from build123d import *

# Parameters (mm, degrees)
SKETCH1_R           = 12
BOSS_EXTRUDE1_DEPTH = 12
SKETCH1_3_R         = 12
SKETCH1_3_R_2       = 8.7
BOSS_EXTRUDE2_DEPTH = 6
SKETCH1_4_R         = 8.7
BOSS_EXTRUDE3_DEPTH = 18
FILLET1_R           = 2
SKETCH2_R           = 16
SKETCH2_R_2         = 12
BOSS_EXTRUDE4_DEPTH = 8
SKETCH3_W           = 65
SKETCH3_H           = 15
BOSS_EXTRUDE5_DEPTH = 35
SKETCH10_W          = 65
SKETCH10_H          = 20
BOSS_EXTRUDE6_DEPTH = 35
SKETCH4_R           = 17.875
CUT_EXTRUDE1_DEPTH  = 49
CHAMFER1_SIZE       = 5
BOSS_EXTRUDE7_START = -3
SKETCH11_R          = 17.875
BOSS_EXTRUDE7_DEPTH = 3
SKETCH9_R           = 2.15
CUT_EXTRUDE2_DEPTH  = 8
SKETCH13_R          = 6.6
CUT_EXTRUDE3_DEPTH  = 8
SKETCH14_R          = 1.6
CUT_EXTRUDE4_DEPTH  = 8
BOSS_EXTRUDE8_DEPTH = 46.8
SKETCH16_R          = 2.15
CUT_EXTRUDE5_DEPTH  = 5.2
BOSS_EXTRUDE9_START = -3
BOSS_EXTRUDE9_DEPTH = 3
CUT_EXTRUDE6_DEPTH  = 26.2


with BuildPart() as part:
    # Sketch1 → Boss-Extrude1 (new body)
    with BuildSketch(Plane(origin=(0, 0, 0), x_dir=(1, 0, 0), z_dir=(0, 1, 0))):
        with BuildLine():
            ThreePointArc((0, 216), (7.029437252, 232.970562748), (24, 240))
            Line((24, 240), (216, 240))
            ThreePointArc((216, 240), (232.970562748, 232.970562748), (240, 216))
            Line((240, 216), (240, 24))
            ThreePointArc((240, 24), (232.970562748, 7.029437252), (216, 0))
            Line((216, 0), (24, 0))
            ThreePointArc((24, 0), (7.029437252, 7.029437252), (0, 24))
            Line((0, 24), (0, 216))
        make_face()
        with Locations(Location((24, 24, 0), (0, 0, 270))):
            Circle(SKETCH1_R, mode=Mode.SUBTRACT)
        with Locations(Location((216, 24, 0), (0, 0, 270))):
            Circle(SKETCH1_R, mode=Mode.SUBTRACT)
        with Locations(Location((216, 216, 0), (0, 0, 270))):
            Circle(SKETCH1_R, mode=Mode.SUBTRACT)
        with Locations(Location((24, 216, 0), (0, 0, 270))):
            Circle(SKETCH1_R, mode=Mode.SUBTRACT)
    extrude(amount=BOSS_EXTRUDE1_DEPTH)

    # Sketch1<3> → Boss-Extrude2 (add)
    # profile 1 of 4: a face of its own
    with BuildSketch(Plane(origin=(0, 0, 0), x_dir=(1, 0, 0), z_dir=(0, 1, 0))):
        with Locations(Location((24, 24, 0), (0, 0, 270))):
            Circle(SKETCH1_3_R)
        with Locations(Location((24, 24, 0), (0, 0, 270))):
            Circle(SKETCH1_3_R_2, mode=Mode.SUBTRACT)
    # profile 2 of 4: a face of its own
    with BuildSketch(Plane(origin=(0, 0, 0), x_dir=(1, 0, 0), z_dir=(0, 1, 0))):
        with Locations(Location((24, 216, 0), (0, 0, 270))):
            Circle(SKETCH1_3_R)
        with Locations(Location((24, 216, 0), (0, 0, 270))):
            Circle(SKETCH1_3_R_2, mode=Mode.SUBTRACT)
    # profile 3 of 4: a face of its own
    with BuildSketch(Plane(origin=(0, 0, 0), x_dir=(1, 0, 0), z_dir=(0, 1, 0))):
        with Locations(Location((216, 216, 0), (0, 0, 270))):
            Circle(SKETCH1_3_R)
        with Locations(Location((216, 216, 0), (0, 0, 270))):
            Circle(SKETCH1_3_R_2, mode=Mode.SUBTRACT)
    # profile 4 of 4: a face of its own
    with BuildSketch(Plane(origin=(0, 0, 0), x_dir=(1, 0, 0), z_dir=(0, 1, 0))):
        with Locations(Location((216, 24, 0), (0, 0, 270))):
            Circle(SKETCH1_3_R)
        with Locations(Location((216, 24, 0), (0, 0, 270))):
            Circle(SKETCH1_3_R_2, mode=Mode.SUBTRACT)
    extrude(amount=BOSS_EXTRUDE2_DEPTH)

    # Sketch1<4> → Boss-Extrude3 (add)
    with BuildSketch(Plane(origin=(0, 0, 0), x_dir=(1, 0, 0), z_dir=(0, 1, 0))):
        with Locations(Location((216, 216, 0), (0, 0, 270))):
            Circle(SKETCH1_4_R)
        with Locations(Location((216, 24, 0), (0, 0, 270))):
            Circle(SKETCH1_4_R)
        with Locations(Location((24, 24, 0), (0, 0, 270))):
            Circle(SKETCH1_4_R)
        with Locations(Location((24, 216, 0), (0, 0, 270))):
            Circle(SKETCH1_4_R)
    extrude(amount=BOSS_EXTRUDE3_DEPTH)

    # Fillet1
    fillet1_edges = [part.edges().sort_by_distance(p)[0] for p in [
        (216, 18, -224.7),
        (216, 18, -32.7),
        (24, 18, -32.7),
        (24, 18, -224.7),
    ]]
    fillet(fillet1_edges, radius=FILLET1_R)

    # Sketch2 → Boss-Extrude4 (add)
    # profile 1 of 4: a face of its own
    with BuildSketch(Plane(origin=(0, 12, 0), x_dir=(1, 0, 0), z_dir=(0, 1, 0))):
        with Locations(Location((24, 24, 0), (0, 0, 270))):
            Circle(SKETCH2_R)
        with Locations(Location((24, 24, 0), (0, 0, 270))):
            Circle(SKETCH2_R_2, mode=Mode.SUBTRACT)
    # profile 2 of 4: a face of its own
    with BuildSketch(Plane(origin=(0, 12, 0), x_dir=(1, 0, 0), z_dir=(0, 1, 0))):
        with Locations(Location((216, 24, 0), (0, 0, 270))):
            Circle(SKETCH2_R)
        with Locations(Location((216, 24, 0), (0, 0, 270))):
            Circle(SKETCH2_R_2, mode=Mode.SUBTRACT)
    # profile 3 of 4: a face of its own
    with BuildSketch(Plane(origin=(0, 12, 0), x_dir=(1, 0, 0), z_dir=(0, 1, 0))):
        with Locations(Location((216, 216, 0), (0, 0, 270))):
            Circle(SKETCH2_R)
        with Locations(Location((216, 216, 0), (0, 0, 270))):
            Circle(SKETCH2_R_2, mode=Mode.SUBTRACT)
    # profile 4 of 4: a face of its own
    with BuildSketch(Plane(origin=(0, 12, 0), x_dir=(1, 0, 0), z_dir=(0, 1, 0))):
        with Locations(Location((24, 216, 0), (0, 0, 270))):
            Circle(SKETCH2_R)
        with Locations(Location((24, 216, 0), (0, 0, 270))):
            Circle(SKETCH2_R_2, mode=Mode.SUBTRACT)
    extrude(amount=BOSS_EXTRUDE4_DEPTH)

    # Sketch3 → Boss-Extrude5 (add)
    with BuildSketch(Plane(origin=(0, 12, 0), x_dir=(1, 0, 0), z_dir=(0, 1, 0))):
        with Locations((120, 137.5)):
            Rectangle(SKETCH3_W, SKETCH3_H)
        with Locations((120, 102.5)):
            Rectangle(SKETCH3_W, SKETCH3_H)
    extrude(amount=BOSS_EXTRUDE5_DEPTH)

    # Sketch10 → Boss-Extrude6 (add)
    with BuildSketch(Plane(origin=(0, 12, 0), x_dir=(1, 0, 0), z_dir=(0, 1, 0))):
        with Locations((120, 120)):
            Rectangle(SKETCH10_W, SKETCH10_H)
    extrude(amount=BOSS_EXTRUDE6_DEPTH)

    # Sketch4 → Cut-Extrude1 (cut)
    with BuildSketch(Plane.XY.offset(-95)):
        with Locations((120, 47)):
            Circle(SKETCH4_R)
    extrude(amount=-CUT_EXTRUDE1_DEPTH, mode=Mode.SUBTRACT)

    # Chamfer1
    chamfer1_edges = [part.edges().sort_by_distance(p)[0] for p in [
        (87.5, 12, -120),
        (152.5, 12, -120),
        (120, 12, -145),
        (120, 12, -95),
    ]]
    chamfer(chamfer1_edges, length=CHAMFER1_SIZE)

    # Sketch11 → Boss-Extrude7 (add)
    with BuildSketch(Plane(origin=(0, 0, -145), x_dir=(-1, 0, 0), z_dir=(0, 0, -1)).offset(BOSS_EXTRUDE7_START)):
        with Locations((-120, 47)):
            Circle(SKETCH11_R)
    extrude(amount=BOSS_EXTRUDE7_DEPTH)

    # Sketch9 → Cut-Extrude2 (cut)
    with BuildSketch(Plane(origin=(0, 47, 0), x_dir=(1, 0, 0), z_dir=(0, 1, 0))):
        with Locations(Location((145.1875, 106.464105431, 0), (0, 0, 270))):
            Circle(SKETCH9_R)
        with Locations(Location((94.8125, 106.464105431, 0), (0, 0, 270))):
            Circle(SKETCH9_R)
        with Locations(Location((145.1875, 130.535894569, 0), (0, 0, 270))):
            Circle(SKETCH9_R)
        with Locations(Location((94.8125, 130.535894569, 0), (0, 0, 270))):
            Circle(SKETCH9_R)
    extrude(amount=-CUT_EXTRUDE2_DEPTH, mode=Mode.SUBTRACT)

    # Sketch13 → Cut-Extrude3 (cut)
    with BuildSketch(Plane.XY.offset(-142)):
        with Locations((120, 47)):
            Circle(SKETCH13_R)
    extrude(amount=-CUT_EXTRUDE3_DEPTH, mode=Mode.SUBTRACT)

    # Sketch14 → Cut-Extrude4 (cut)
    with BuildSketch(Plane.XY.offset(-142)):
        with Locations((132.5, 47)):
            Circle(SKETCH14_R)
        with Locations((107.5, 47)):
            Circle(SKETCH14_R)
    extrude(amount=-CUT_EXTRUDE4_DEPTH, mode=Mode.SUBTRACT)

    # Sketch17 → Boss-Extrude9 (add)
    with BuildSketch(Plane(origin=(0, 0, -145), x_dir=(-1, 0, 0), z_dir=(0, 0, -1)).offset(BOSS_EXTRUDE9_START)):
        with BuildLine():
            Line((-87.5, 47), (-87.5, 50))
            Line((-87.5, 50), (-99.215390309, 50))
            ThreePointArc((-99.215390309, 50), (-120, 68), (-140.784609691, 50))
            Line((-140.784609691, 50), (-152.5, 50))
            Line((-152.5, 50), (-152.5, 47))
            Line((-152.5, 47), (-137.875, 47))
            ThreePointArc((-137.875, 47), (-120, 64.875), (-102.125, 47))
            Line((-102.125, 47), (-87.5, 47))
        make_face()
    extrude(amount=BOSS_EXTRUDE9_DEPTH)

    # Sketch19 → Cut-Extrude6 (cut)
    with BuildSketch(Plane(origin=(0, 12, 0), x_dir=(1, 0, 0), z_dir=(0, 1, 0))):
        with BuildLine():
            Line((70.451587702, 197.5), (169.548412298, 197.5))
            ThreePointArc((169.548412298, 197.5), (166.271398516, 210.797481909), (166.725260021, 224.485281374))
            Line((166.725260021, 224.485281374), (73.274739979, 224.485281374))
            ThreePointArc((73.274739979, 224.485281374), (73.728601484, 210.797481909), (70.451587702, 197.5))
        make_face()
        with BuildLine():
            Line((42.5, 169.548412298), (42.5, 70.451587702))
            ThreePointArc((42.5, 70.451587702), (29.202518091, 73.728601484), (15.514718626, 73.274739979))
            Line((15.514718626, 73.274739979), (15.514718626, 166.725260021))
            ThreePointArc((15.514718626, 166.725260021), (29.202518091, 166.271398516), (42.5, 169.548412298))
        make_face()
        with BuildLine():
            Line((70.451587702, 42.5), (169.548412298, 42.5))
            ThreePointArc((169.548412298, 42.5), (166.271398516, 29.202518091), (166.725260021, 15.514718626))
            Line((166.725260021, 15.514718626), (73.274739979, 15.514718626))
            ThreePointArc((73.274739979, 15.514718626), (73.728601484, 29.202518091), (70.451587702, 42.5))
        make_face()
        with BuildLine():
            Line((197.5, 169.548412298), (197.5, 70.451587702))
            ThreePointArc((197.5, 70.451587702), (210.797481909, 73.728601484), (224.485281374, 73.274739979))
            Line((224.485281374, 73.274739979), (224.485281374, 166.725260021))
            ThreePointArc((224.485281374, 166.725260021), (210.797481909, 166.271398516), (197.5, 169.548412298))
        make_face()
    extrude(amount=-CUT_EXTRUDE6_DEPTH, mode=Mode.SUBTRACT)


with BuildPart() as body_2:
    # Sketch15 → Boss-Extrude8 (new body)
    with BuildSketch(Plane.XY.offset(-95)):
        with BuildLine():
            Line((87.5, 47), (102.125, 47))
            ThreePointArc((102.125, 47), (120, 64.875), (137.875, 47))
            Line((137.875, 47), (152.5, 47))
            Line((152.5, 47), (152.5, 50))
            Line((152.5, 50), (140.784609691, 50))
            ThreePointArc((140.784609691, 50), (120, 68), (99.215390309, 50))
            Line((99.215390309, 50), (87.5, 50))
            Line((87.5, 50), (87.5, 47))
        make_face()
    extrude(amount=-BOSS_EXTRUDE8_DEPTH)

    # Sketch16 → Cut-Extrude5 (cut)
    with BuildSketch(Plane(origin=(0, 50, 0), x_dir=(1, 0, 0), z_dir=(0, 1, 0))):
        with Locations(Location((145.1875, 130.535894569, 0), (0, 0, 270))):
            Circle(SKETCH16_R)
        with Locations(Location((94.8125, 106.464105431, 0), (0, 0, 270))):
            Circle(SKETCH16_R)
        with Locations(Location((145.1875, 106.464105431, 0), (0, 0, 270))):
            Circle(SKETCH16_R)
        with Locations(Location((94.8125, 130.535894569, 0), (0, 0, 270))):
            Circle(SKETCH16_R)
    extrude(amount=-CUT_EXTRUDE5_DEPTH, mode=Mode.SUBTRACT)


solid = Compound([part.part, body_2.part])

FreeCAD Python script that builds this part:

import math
import FreeCAD as App
import Part
import Sketcher
from FreeCAD import Vector


def edges_at(feature, points):
    """Names of the edges that pass closest to the given points."""
    edges = feature.Shape.Edges
    near = lambda p: min(range(len(edges)), key=lambda i: edges[i].distToShape(Part.Vertex(*p))[0])
    return sorted({f"Edge{near(p) + 1}" for p in points})

doc = App.newDocument("Part")
params = doc.addObject("Spreadsheet::Sheet", "Params")
for row, (alias, value) in enumerate([
    ("sketch1_diameter", "24 mm"),
    ("sketch1_radius", "24 mm"),
    ("sketch1_width", "192 mm"),
    ("pad1_length", "12 mm"),
    ("sketch2_diameter", "24 mm"),
    ("sketch2_diameter2", "17.4 mm"),
    ("pad2_length", "6 mm"),
    ("sketch3_diameter", "17.4 mm"),
    ("pad3_length", "18 mm"),
    ("fillet_radius", "2 mm"),
    ("sketch4_diameter", "32 mm"),
    ("sketch4_diameter2", "24 mm"),
    ("pad4_length", "8 mm"),
    ("sketch5_width", "65 mm"),
    ("sketch5_height", "15 mm"),
    ("pad5_length", "35 mm"),
    ("sketch6_width", "65 mm"),
    ("sketch6_height", "20 mm"),
    ("pad6_length", "35 mm"),
    ("sketch7_diameter", "35.75 mm"),
    ("pocket1_length", "49 mm"),
    ("chamfer_size", "5 mm"),
    ("sketch8_diameter", "35.75 mm"),
    ("pad7_length", "3 mm"),
    ("sketch9_diameter", "4.3 mm"),
    ("pocket2_length", "8 mm"),
    ("sketch10_diameter", "13.2 mm"),
    ("pocket3_length", "8 mm"),
    ("sketch11_diameter", "3.2 mm"),
    ("pocket4_length", "8 mm"),
    ("sketch12_radius", "21 mm"),
    ("sketch12_height", "3 mm"),
    ("pad8_length", "3 mm"),
    ("sketch13_radius", "50 mm"),
    ("pocket5_length", "26.2 mm"),
    ("sketch14_radius", "21 mm"),
    ("sketch14_height", "3 mm"),
    ("pad9_length", "46.8 mm"),
    ("sketch15_diameter", "4.3 mm"),
    ("pocket6_length", "5.2 mm"),
], start=1):
    params.set(f"A{row}", alias)
    params.set(f"B{row}", "=" + value)
    params.setAlias(f"B{row}", alias)

body = doc.addObject("PartDesign::Body", "Body")

# Sketch on XZ plane
sketch1 = doc.addObject("Sketcher::SketchObject", "Sketch")
body.addObject(sketch1)
sketch1.AttachmentSupport = (doc.XZ_Plane, [""])
sketch1.MapMode = "FlatFace"
sketch1.addGeometry([
    Part.ArcOfCircle(Part.Circle(Vector(24, -216, 0), Vector(0, 0, 1), 24), math.radians(-180), math.radians(-90)),  # 0
    Part.LineSegment(Vector(0, -216, 0), Vector(0, -24, 0)),  # 1
    Part.ArcOfCircle(Part.Circle(Vector(24, -24, 0), Vector(0, 0, 1), 24), math.radians(90), math.radians(180)),  # 2
    Part.LineSegment(Vector(24, 0, 0), Vector(216, 0, 0)),  # 3
    Part.ArcOfCircle(Part.Circle(Vector(216, -24, 0), Vector(0, 0, 1), 24), math.radians(0), math.radians(90)),  # 4
    Part.LineSegment(Vector(240, -24, 0), Vector(240, -216, 0)),  # 5
    Part.ArcOfCircle(Part.Circle(Vector(216, -216, 0), Vector(0, 0, 1), 24), math.radians(-90), math.radians(0)),  # 6
    Part.LineSegment(Vector(216, -240, 0), Vector(24, -240, 0)),  # 7
    Part.Circle(Vector(216, -24, 0), Vector(0, 0, 1), 12),  # 8
    Part.Circle(Vector(24, -24, 0), Vector(0, 0, 1), 12),  # 9
    Part.Circle(Vector(216, -216, 0), Vector(0, 0, 1), 12),  # 10
    Part.Circle(Vector(24, -216, 0), Vector(0, 0, 1), 12),  # 11
], False)
sketch1.addConstraint([
    Sketcher.Constraint("Tangent", 0, 1, 1, 1),
    Sketcher.Constraint("Tangent", 1, 2, 2, 2),
    Sketcher.Constraint("Tangent", 2, 1, 3, 1),
    Sketcher.Constraint("Tangent", 3, 2, 4, 2),
    Sketcher.Constraint("Tangent", 4, 1, 5, 1),
    Sketcher.Constraint("Tangent", 5, 2, 6, 2),
    Sketcher.Constraint("Tangent", 6, 1, 7, 1),
    Sketcher.Constraint("Tangent", 7, 2, 0, 2),
    Sketcher.Constraint("Vertical", 1),
    Sketcher.Constraint("Horizontal", 3),
    Sketcher.Constraint("Vertical", 5),
    Sketcher.Constraint("Horizontal", 7),
    Sketcher.Constraint("Coincident", 8, 3, 4, 3),
    Sketcher.Constraint("Coincident", 9, 3, 2, 3),
    Sketcher.Constraint("Coincident", 10, 3, 6, 3),
    Sketcher.Constraint("Coincident", 11, 3, 0, 3),
    Sketcher.Constraint("Equal", 0, 2),
    Sketcher.Constraint("Equal", 2, 4),
    Sketcher.Constraint("Equal", 4, 6),
    Sketcher.Constraint("Equal", 8, 9),
    Sketcher.Constraint("Equal", 9, 10),
    Sketcher.Constraint("Equal", 10, 11),
    Sketcher.Constraint("PointOnObject", 0, 1, -2),
    Sketcher.Constraint("PointOnObject", 2, 1, -1),
    Sketcher.Constraint("Equal", 7, 1),
    Sketcher.Constraint("Diameter", 8, 24.0),
    Sketcher.Constraint("Radius", 0, 24.0),
    Sketcher.Constraint("DistanceX", 3, 1, 3, 2, 192.0),
])
sketch1.setExpression("Constraints[25]", "Params.sketch1_diameter")
sketch1.setExpression("Constraints[26]", "Params.sketch1_radius")
sketch1.setExpression("Constraints[27]", "Params.sketch1_width")
pad1 = doc.addObject("PartDesign::Pad", "Pad")
body.addObject(pad1)
pad1.Profile = sketch1
pad1.setExpression("Length", "Params.pad1_length")
pad1.Reversed = True

# Sketch on XZ plane
sketch2 = doc.addObject("Sketcher::SketchObject", "Sketch001")
body.addObject(sketch2)
sketch2.AttachmentSupport = (doc.XZ_Plane, [""])
sketch2.MapMode = "FlatFace"
sketch2.addGeometry([
    Part.Circle(Vector(24, -24, 0), Vector(0, 0, 1), 12),  # 0
    Part.Circle(Vector(24, -24, 0), Vector(0, 0, 1), 9),  # 1
    Part.Circle(Vector(24, -216, 0), Vector(0, 0, 1), 12),  # 2
    Part.Circle(Vector(24, -216, 0), Vector(0, 0, 1), 9),  # 3
    Part.Circle(Vector(216, -216, 0), Vector(0, 0, 1), 12),  # 4
    Part.Circle(Vector(216, -216, 0), Vector(0, 0, 1), 9),  # 5
    Part.Circle(Vector(216, -24, 0), Vector(0, 0, 1), 12),  # 6
    Part.Circle(Vector(216, -24, 0), Vector(0, 0, 1), 9),  # 7
], False)
sketch2.addConstraint([
    Sketcher.Constraint("Coincident", 1, 3, 0, 3),
    Sketcher.Constraint("Coincident", 3, 3, 2, 3),
    Sketcher.Constraint("Coincident", 5, 3, 4, 3),
    Sketcher.Constraint("Coincident", 7, 3, 6, 3),
    Sketcher.Constraint("Equal", 0, 2),
    Sketcher.Constraint("Equal", 1, 3),
    Sketcher.Constraint("Equal", 2, 4),
    Sketcher.Constraint("Equal", 3, 5),
    Sketcher.Constraint("Equal", 4, 6),
    Sketcher.Constraint("Equal", 5, 7),
    Sketcher.Constraint("Horizontal", 3, 3, 4, 3),
    Sketcher.Constraint("Horizontal", 1, 3, 6, 3),
    Sketcher.Constraint("Vertical", 1, 3, 2, 3),
    Sketcher.Constraint("Vertical", 5, 3, 6, 3),
    Sketcher.Constraint("Diameter", 0, 24.0),
    Sketcher.Constraint("Diameter", 1, 17.4),
    Sketcher.Constraint("DistanceX", -1, 1, 0, 3, 24.0),
    Sketcher.Constraint("DistanceY", 0, 3, -1, 1, 24.0),
    Sketcher.Constraint("DistanceY", 2, 3, -1, 1, 216.0),
    Sketcher.Constraint("DistanceX", -1, 1, 4, 3, 216.0),
])
sketch2.setExpression("Constraints[14]", "Params.sketch2_diameter")
sketch2.setExpression("Constraints[15]", "Params.sketch2_diameter2")
pad2 = doc.addObject("PartDesign::Pad", "Pad001")
body.addObject(pad2)
pad2.Profile = sketch2
pad2.setExpression("Length", "Params.pad2_length")
pad2.Reversed = True

# Sketch on XZ plane
sketch3 = doc.addObject("Sketcher::SketchObject", "Sketch002")
body.addObject(sketch3)
sketch3.AttachmentSupport = (doc.XZ_Plane, [""])
sketch3.MapMode = "FlatFace"
sketch3.addGeometry([
    Part.Circle(Vector(216, -216, 0), Vector(0, 0, 1), 9),
    Part.Circle(Vector(216, -24, 0), Vector(0, 0, 1), 9),
    Part.Circle(Vector(24, -24, 0), Vector(0, 0, 1), 9),
    Part.Circle(Vector(24, -216, 0), Vector(0, 0, 1), 9),
], False)
sketch3.addConstraint([
    Sketcher.Constraint("Equal", 0, 1),
    Sketcher.Constraint("Equal", 1, 2),
    Sketcher.Constraint("Equal", 2, 3),
    Sketcher.Constraint("Horizontal", 1, 3, 2, 3),
    Sketcher.Constraint("Horizontal", 0, 3, 3, 3),
    Sketcher.Constraint("Vertical", 0, 3, 1, 3),
    Sketcher.Constraint("Vertical", 2, 3, 3, 3),
    Sketcher.Constraint("Diameter", 0, 17.4),
    Sketcher.Constraint("DistanceX", -1, 1, 0, 3, 216.0),
    Sketcher.Constraint("DistanceY", 0, 3, -1, 1, 216.0),
    Sketcher.Constraint("DistanceY", 1, 3, -1, 1, 24.0),
    Sketcher.Constraint("DistanceX", -1, 1, 2, 3, 24.0),
])
sketch3.setExpression("Constraints[7]", "Params.sketch3_diameter")
pad3 = doc.addObject("PartDesign::Pad", "Pad002")
body.addObject(pad3)
pad3.Profile = sketch3
pad3.setExpression("Length", "Params.pad3_length")
pad3.Reversed = True
doc.recompute()

fillet = doc.addObject("PartDesign::Fillet", "Fillet")
body.addObject(fillet)
fillet.Base = (pad3, edges_at(pad3, [
    (216, 18, -224.7),
    (216, 18, -32.7),
    (24, 18, -32.7),
    (24, 18, -224.7),
]))
fillet.setExpression("Radius", "Params.fillet_radius")

# Sketch on XZ plane
sketch4 = doc.addObject("Sketcher::SketchObject", "Sketch003")
body.addObject(sketch4)
sketch4.AttachmentSupport = (doc.XZ_Plane, [""])
sketch4.MapMode = "FlatFace"
sketch4.AttachmentOffset = App.Placement(Vector(0, 0, -12), App.Rotation())
sketch4.addGeometry([
    Part.Circle(Vector(24, -24, 0), Vector(0, 0, 1), 16),  # 0
    Part.Circle(Vector(24, -24, 0), Vector(0, 0, 1), 12),  # 1
    Part.Circle(Vector(216, -24, 0), Vector(0, 0, 1), 16),  # 2
    Part.Circle(Vector(216, -24, 0), Vector(0, 0, 1), 12),  # 3
    Part.Circle(Vector(216, -216, 0), Vector(0, 0, 1), 16),  # 4
    Part.Circle(Vector(216, -216, 0), Vector(0, 0, 1), 12),  # 5
    Part.Circle(Vector(24, -216, 0), Vector(0, 0, 1), 16),  # 6
    Part.Circle(Vector(24, -216, 0), Vector(0, 0, 1), 12),  # 7
], False)
sketch4.addConstraint([
    Sketcher.Constraint("Coincident", 1, 3, 0, 3),
    Sketcher.Constraint("Coincident", 3, 3, 2, 3),
    Sketcher.Constraint("Coincident", 5, 3, 4, 3),
    Sketcher.Constraint("Coincident", 7, 3, 6, 3),
    Sketcher.Constraint("Equal", 0, 2),
    Sketcher.Constraint("Equal", 1, 3),
    Sketcher.Constraint("Equal", 2, 4),
    Sketcher.Constraint("Equal", 3, 5),
    Sketcher.Constraint("Equal", 4, 6),
    Sketcher.Constraint("Equal", 5, 7),
    Sketcher.Constraint("Horizontal", 1, 3, 2, 3),
    Sketcher.Constraint("Horizontal", 5, 3, 6, 3),
    Sketcher.Constraint("Vertical", 3, 3, 4, 3),
    Sketcher.Constraint("Vertical", 1, 3, 6, 3),
    Sketcher.Constraint("Diameter", 0, 32.0),
    Sketcher.Constraint("Diameter", 1, 24.0),
    Sketcher.Constraint("DistanceX", -1, 1, 0, 3, 24.0),
    Sketcher.Constraint("DistanceY", 0, 3, -1, 1, 24.0),
    Sketcher.Constraint("DistanceX", -1, 1, 2, 3, 216.0),
    Sketcher.Constraint("DistanceY", 4, 3, -1, 1, 216.0),
])
sketch4.setExpression("Constraints[14]", "Params.sketch4_diameter")
sketch4.setExpression("Constraints[15]", "Params.sketch4_diameter2")
pad4 = doc.addObject("PartDesign::Pad", "Pad003")
body.addObject(pad4)
pad4.Profile = sketch4
pad4.setExpression("Length", "Params.pad4_length")
pad4.Reversed = True

# Sketch on XZ plane
sketch5 = doc.addObject("Sketcher::SketchObject", "Sketch004")
body.addObject(sketch5)
sketch5.AttachmentSupport = (doc.XZ_Plane, [""])
sketch5.MapMode = "FlatFace"
sketch5.AttachmentOffset = App.Placement(Vector(0, 0, -12), App.Rotation())
sketch5.addGeometry([
    Part.LineSegment(Vector(88, -145, 0), Vector(88, -130, 0)),  # 0
    Part.LineSegment(Vector(88, -130, 0), Vector(152, -130, 0)),  # 1
    Part.LineSegment(Vector(152, -130, 0), Vector(152, -145, 0)),  # 2
    Part.LineSegment(Vector(152, -145, 0), Vector(88, -145, 0)),  # 3
    Part.LineSegment(Vector(88, -110, 0), Vector(88, -95, 0)),  # 4
    Part.LineSegment(Vector(88, -95, 0), Vector(152, -95, 0)),  # 5
    Part.LineSegment(Vector(152, -95, 0), Vector(152, -110, 0)),  # 6
    Part.LineSegment(Vector(152, -110, 0), Vector(88, -110, 0)),  # 7
], False)
sketch5.addConstraint([
    Sketcher.Constraint("Coincident", 0, 2, 1, 1),
    Sketcher.Constraint("Coincident", 1, 2, 2, 1),
    Sketcher.Constraint("Coincident", 2, 2, 3, 1),
    Sketcher.Constraint("Coincident", 3, 2, 0, 1),
    Sketcher.Constraint("Coincident", 4, 2, 5, 1),
    Sketcher.Constraint("Coincident", 5, 2, 6, 1),
    Sketcher.Constraint("Coincident", 6, 2, 7, 1),
    Sketcher.Constraint("Coincident", 7, 2, 4, 1),
    Sketcher.Constraint("Vertical", 0),
    Sketcher.Constraint("Horizontal", 1),
    Sketcher.Constraint("Vertical", 2),
    Sketcher.Constraint("Horizontal", 3),
    Sketcher.Constraint("Vertical", 4),
    Sketcher.Constraint("Horizontal", 5),
    Sketcher.Constraint("Vertical", 6),
    Sketcher.Constraint("Horizontal", 7),
    Sketcher.Constraint("Vertical", 3, 2, 4, 2),
    Sketcher.Constraint("Vertical", 2, 2, 5, 2),
    Sketcher.Constraint("Equal", 2, 4),
    Sketcher.Constraint("DistanceX", 1, 1, 1, 2, 65.0),
    Sketcher.Constraint("DistanceY", 0, 1, 0, 2, 15.0),
    Sketcher.Constraint("DistanceY", 0, 2, -1, 1, 130.0),
    Sketcher.Constraint("DistanceY", 4, 2, -1, 1, 95.0),
    Sketcher.Constraint("DistanceX", -1, 1, 0, 2, 87.5),
])
sketch5.setExpression("Constraints[19]", "Params.sketch5_width")
sketch5.setExpression("Constraints[20]", "Params.sketch5_height")
pad5 = doc.addObject("PartDesign::Pad", "Pad004")
body.addObject(pad5)
pad5.Profile = sketch5
pad5.setExpression("Length", "Params.pad5_length")
pad5.Reversed = True

# Sketch on XZ plane
sketch6 = doc.addObject("Sketcher::SketchObject", "Sketch005")
body.addObject(sketch6)
sketch6.AttachmentSupport = (doc.XZ_Plane, [""])
sketch6.MapMode = "FlatFace"
sketch6.AttachmentOffset = App.Placement(Vector(0, 0, -12), App.Rotation())
sketch6.addGeometry([
    Part.LineSegment(Vector(88, -130, 0), Vector(88, -110, 0)),
    Part.LineSegment(Vector(88, -110, 0), Vector(152, -110, 0)),
    Part.LineSegment(Vector(152, -110, 0), Vector(152, -130, 0)),
    Part.LineSegment(Vector(152, -130, 0), Vector(88, -130, 0)),
], False)
sketch6.addConstraint([
    Sketcher.Constraint("Coincident", 0, 2, 1, 1),
    Sketcher.Constraint("Coincident", 1, 2, 2, 1),
    Sketcher.Constraint("Coincident", 2, 2, 3, 1),
    Sketcher.Constraint("Coincident", 3, 2, 0, 1),
    Sketcher.Constraint("Vertical", 0),
    Sketcher.Constraint("Horizontal", 1),
    Sketcher.Constraint("Vertical", 2),
    Sketcher.Constraint("Horizontal", 3),
    Sketcher.Constraint("DistanceX", 1, 1, 1, 2, 65.0),
    Sketcher.Constraint("DistanceY", 0, 1, 0, 2, 20.0),
    Sketcher.Constraint("DistanceY", 0, 2, -1, 1, 110.0),
    Sketcher.Constraint("DistanceX", -1, 1, 0, 2, 87.5),
])
sketch6.setExpression("Constraints[8]", "Params.sketch6_width")
sketch6.setExpression("Constraints[9]", "Params.sketch6_height")
pad6 = doc.addObject("PartDesign::Pad", "Pad005")
body.addObject(pad6)
pad6.Profile = sketch6
pad6.setExpression("Length", "Params.pad6_length")
pad6.Reversed = True

# Sketch on XY plane
sketch7 = doc.addObject("Sketcher::SketchObject", "Sketch006")
body.addObject(sketch7)
sketch7.AttachmentSupport = (doc.XY_Plane, [""])
sketch7.MapMode = "FlatFace"
sketch7.AttachmentOffset = App.Placement(Vector(0, 0, -95), App.Rotation())
sketch7.addGeometry(Part.Circle(Vector(120, 47, 0), Vector(0, 0, 1), 18), False)
sketch7.addConstraint([
    Sketcher.Constraint("Diameter", 0, 35.75),
    Sketcher.Constraint("DistanceX", -1, 1, 0, 3, 120.0),
    Sketcher.Constraint("DistanceY", -1, 1, 0, 3, 47.0),
])
sketch7.setExpression("Constraints[0]", "Params.sketch7_diameter")
pocket1 = doc.addObject("PartDesign::Pocket", "Pocket")
body.addObject(pocket1)
pocket1.Profile = sketch7
pocket1.setExpression("Length", "Params.pocket1_length")
doc.recompute()

chamfer = doc.addObject("PartDesign::Chamfer", "Chamfer")
body.addObject(chamfer)
chamfer.Base = (pocket1, edges_at(pocket1, [
    (87.5, 12, -120),
    (152.5, 12, -120),
    (120, 12, -145),
    (120, 12, -95),
]))
chamfer.setExpression("Size", "Params.chamfer_size")

# Sketch on XY plane
sketch8 = doc.addObject("Sketcher::SketchObject", "Sketch007")
body.addObject(sketch8)
sketch8.AttachmentSupport = (doc.XY_Plane, [""])
sketch8.MapMode = "FlatFace"
sketch8.AttachmentOffset = App.Placement(Vector(0, 0, -142), App.Rotation())
sketch8.addGeometry(Part.Circle(Vector(120, 47, 0), Vector(0, 0, 1), 18), False)
sketch8.addConstraint([
    Sketcher.Constraint("Diameter", 0, 35.75),
    Sketcher.Constraint("DistanceX", -1, 1, 0, 3, 120.0),
    Sketcher.Constraint("DistanceY", -1, 1, 0, 3, 47.0),
])
sketch8.setExpression("Constraints[0]", "Params.sketch8_diameter")
pad7 = doc.addObject("PartDesign::Pad", "Pad006")
body.addObject(pad7)
pad7.Profile = sketch8
pad7.setExpression("Length", "Params.pad7_length")
pad7.Reversed = True

# Sketch on XZ plane
sketch9 = doc.addObject("Sketcher::SketchObject", "Sketch008")
body.addObject(sketch9)
sketch9.AttachmentSupport = (doc.XZ_Plane, [""])
sketch9.MapMode = "FlatFace"
sketch9.AttachmentOffset = App.Placement(Vector(0, 0, -47), App.Rotation())
sketch9.addGeometry([
    Part.Circle(Vector(145.2, -106.5, 0), Vector(0, 0, 1), 2.1),
    Part.Circle(Vector(94.8, -106.5, 0), Vector(0, 0, 1), 2.1),
    Part.Circle(Vector(145.2, -130.5, 0), Vector(0, 0, 1), 2.1),
    Part.Circle(Vector(94.8, -130.5, 0), Vector(0, 0, 1), 2.1),
], False)
sketch9.addConstraint([
    Sketcher.Constraint("Equal", 0, 1),
    Sketcher.Constraint("Equal", 1, 2),
    Sketcher.Constraint("Equal", 2, 3),
    Sketcher.Constraint("Horizontal", 0, 3, 1, 3),
    Sketcher.Constraint("Horizontal", 2, 3, 3, 3),
    Sketcher.Constraint("Vertical", 0, 3, 2, 3),
    Sketcher.Constraint("Vertical", 1, 3, 3, 3),
    Sketcher.Constraint("Diameter", 0, 4.3),
    Sketcher.Constraint("DistanceX", 1, 3, 0, 3, 50.375),
    Sketcher.Constraint("DistanceX", -1, 1, 0, 3, 145.1875),
    Sketcher.Constraint("DistanceY", 2, 3, 0, 3, 24.071789),
    Sketcher.Constraint("DistanceY", 0, 3, -1, 1, 106.464105),
])
sketch9.setExpression("Constraints[7]", "Params.sketch9_diameter")
pocket2 = doc.addObject("PartDesign::Pocket", "Pocket001")
body.addObject(pocket2)
pocket2.Profile = sketch9
pocket2.setExpression("Length", "Params.pocket2_length")
pocket2.Reversed = True

# Sketch on XY plane
sketch10 = doc.addObject("Sketcher::SketchObject", "Sketch009")
body.addObject(sketch10)
sketch10.AttachmentSupport = (doc.XY_Plane, [""])
sketch10.MapMode = "FlatFace"
sketch10.AttachmentOffset = App.Placement(Vector(0, 0, -142), App.Rotation())
sketch10.addGeometry(Part.Circle(Vector(120, 47, 0), Vector(0, 0, 1), 7), False)
sketch10.addConstraint([
    Sketcher.Constraint("Diameter", 0, 13.2),
    Sketcher.Constraint("DistanceX", -1, 1, 0, 3, 120.0),
    Sketcher.Constraint("DistanceY", -1, 1, 0, 3, 47.0),
])
sketch10.setExpression("Constraints[0]", "Params.sketch10_diameter")
pocket3 = doc.addObject("PartDesign::Pocket", "Pocket002")
body.addObject(pocket3)
pocket3.Profile = sketch10
pocket3.setExpression("Length", "Params.pocket3_length")

# Sketch on XY plane
sketch11 = doc.addObject("Sketcher::SketchObject", "Sketch010")
body.addObject(sketch11)
sketch11.AttachmentSupport = (doc.XY_Plane, [""])
sketch11.MapMode = "FlatFace"
sketch11.AttachmentOffset = App.Placement(Vector(0, 0, -142), App.Rotation())
sketch11.addGeometry([
    Part.Circle(Vector(132.5, 47, 0), Vector(0, 0, 1), 1.6),
    Part.Circle(Vector(107.5, 47, 0), Vector(0, 0, 1), 1.6),
], False)
sketch11.addConstraint([
    Sketcher.Constraint("Equal", 0, 1),
    Sketcher.Constraint("Horizontal", 0, 3, 1, 3),
    Sketcher.Constraint("Diameter", 0, 3.2),
    Sketcher.Constraint("DistanceY", -1, 1, 0, 3, 47.0),
    Sketcher.Constraint("DistanceX", 1, 3, 0, 3, 25.0),
    Sketcher.Constraint("DistanceX", -1, 1, 0, 3, 132.5),
])
sketch11.setExpression("Constraints[2]", "Params.sketch11_diameter")
pocket4 = doc.addObject("PartDesign::Pocket", "Pocket003")
body.addObject(pocket4)
pocket4.Profile = sketch11
pocket4.setExpression("Length", "Params.pocket4_length")

# Sketch on XY plane
sketch12 = doc.addObject("Sketcher::SketchObject", "Sketch011")
body.addObject(sketch12)
sketch12.AttachmentSupport = (doc.XY_Plane, [""])
sketch12.MapMode = "FlatFace"
sketch12.AttachmentOffset = App.Placement(Vector(0, 0, -142), App.Rotation())
sketch12.addGeometry([
    Part.LineSegment(Vector(87.5, 47, 0), Vector(87.5, 50, 0)),  # 0
    Part.LineSegment(Vector(87.5, 50, 0), Vector(99.2, 50, 0)),  # 1
    Part.ArcOfCircle(Part.Circle(Vector(120, 47, 0), Vector(0, 0, 1), 21), math.radians(8), math.radians(172)),  # 2
    Part.LineSegment(Vector(140.8, 50, 0), Vector(152.5, 50, 0)),  # 3
    Part.LineSegment(Vector(152.5, 50, 0), Vector(152.5, 47, 0)),  # 4
    Part.LineSegment(Vector(152.5, 47, 0), Vector(137.9, 47, 0)),  # 5
    Part.ArcOfCircle(Part.Circle(Vector(120, 47, 0), Vector(0, 0, 1), 17.9), math.radians(0), math.radians(180)),  # 6
    Part.LineSegment(Vector(102.1, 47, 0), Vector(87.5, 47, 0)),  # 7
], False)
sketch12.addConstraint([
    Sketcher.Constraint("Coincident", 0, 2, 1, 1),
    Sketcher.Constraint("Coincident", 1, 2, 2, 2),
    Sketcher.Constraint("Coincident", 2, 1, 3, 1),
    Sketcher.Constraint("Coincident", 3, 2, 4, 1),
    Sketcher.Constraint("Coincident", 4, 2, 5, 1),
    Sketcher.Constraint("Coincident", 5, 2, 6, 1),
    Sketcher.Constraint("Coincident", 6, 2, 7, 1),
    Sketcher.Constraint("Coincident", 7, 2, 0, 1),
    Sketcher.Constraint("Vertical", 0),
    Sketcher.Constraint("Horizontal", 1),
    Sketcher.Constraint("Horizontal", 3),
    Sketcher.Constraint("Vertical", 4),
    Sketcher.Constraint("Horizontal", 5),
    Sketcher.Constraint("Horizontal", 7),
    Sketcher.Constraint("Coincident", 6, 3, 2, 3),
    Sketcher.Constraint("Horizontal", 1, 2, 2, 1),
    Sketcher.Constraint("Horizontal", 6, 3, 4, 2),
    Sketcher.Constraint("Horizontal", 5, 2, 6, 2),
    Sketcher.Constraint("Equal", 1, 3),
    Sketcher.Constraint("Radius", 2, 21.0),
    Sketcher.Constraint("DistanceY", 0, 1, 0, 2, 3.0),
    Sketcher.Constraint("DistanceX", -1, 1, 2, 3, 120.0),
    Sketcher.Constraint("DistanceY", -1, 1, 2, 3, 47.0),
    Sketcher.Constraint("Radius", 6, 17.875),
    Sketcher.Constraint("DistanceX", 0, 2, 3, 2, 65.0),
])
sketch12.setExpression("Constraints[19]", "Params.sketch12_radius")
sketch12.setExpression("Constraints[20]", "Params.sketch12_height")
pad8 = doc.addObject("PartDesign::Pad", "Pad007")
body.addObject(pad8)
pad8.Profile = sketch12
pad8.setExpression("Length", "Params.pad8_length")
pad8.Reversed = True

# Sketch on XZ plane
sketch13 = doc.addObject("Sketcher::SketchObject", "Sketch012")
body.addObject(sketch13)
sketch13.AttachmentSupport = (doc.XZ_Plane, [""])
sketch13.MapMode = "FlatFace"
sketch13.AttachmentOffset = App.Placement(Vector(0, 0, -12), App.Rotation())
sketch13.addGeometry([
    Part.LineSegment(Vector(70, -198, 0), Vector(170, -198, 0)),  # 0
    Part.ArcOfCircle(Part.Circle(Vector(216, -216, 0), Vector(0, 0, 1), 50), math.radians(158), math.radians(190)),  # 1
    Part.LineSegment(Vector(167, -224, 0), Vector(73, -224, 0)),  # 2
    Part.ArcOfCircle(Part.Circle(Vector(24, -216, 0), Vector(0, 0, 1), 50), math.radians(-10), math.radians(22)),  # 3
    Part.LineSegment(Vector(42, -70, 0), Vector(42, -170, 0)),  # 4
    Part.ArcOfCircle(Part.Circle(Vector(24, -216, 0), Vector(0, 0, 1), 50), math.radians(68), math.radians(100)),  # 5
    Part.LineSegment(Vector(16, -167, 0), Vector(16, -73, 0)),  # 6
    Part.ArcOfCircle(Part.Circle(Vector(24, -24, 0), Vector(0, 0, 1), 50), math.radians(-100), math.radians(-68)),  # 7
    Part.LineSegment(Vector(170, -42, 0), Vector(70, -42, 0)),  # 8
    Part.ArcOfCircle(Part.Circle(Vector(24, -24, 0), Vector(0, 0, 1), 50), math.radians(-22), math.radians(10)),  # 9
    Part.LineSegment(Vector(73, -16, 0), Vector(167, -16, 0)),  # 10
    Part.ArcOfCircle(Part.Circle(Vector(216, -24, 0), Vector(0, 0, 1), 50), math.radians(170), math.radians(202)),  # 11
    Part.LineSegment(Vector(198, -170, 0), Vector(198, -70, 0)),  # 12
    Part.ArcOfCircle(Part.Circle(Vector(216, -24, 0), Vector(0, 0, 1), 50), math.radians(-112), math.radians(-80)),  # 13
    Part.LineSegment(Vector(224, -73, 0), Vector(224, -167, 0)),  # 14
    Part.ArcOfCircle(Part.Circle(Vector(216, -216, 0), Vector(0, 0, 1), 50), math.radians(80), math.radians(112)),  # 15
], False)
sketch13.addConstraint([
    Sketcher.Constraint("Coincident", 0, 2, 1, 1),
    Sketcher.Constraint("Coincident", 1, 2, 2, 1),
    Sketcher.Constraint("Coincident", 2, 2, 3, 1),
    Sketcher.Constraint("Coincident", 3, 2, 0, 1),
    Sketcher.Constraint("Coincident", 4, 2, 5, 1),
    Sketcher.Constraint("Coincident", 5, 2, 6, 1),
    Sketcher.Constraint("Coincident", 6, 2, 7, 1),
    Sketcher.Constraint("Coincident", 7, 2, 4, 1),
    Sketcher.Constraint("Coincident", 8, 2, 9, 1),
    Sketcher.Constraint("Coincident", 9, 2, 10, 1),
    Sketcher.Constraint("Coincident", 10, 2, 11, 1),
    Sketcher.Constraint("Coincident", 11, 2, 8, 1),
    Sketcher.Constraint("Coincident", 12, 2, 13, 1),
    Sketcher.Constraint("Coincident", 13, 2, 14, 1),
    Sketcher.Constraint("Coincident", 14, 2, 15, 1),
    Sketcher.Constraint("Coincident", 15, 2, 12, 1),
    Sketcher.Constraint("Horizontal", 0),
    Sketcher.Constraint("Horizontal", 2),
    Sketcher.Constraint("Vertical", 4),
    Sketcher.Constraint("Vertical", 6),
    Sketcher.Constraint("Horizontal", 8),
    Sketcher.Constraint("Horizontal", 10),
    Sketcher.Constraint("Vertical", 12),
    Sketcher.Constraint("Vertical", 14),
    Sketcher.Constraint("Coincident", 5, 3, 3, 3),
    Sketcher.Constraint("Coincident", 9, 3, 7, 3),
    Sketcher.Constraint("Coincident", 13, 3, 11, 3),
    Sketcher.Constraint("Coincident", 15, 3, 1, 3),
    Sketcher.Constraint("Equal", 1, 3),
    Sketcher.Constraint("Equal", 3, 5),
    Sketcher.Constraint("Equal", 5, 7),
    Sketcher.Constraint("Equal", 7, 9),
    Sketcher.Constraint("Equal", 9, 11),
    Sketcher.Constraint("Equal", 11, 13),
    Sketcher.Constraint("Equal", 13, 15),
    Sketcher.Constraint("Horizontal", 1, 3, 3, 3),
    Sketcher.Constraint("Horizontal", 9, 3, 11, 3),
    Sketcher.Constraint("Horizontal", 7, 2, 12, 2),
    Sketcher.Constraint("Horizontal", 6, 2, 13, 2),
    Sketcher.Constraint("Horizontal", 5, 2, 14, 2),
    Sketcher.Constraint("Vertical", 5, 3, 7, 3),
    Sketcher.Constraint("Vertical", 3, 2, 8, 2),
    Sketcher.Constraint("Vertical", 2, 2, 9, 2),
    Sketcher.Constraint("Equal", 8, 4),
    Sketcher.Constraint("Equal", 10, 6),
    Sketcher.Constraint("Radius", 1, 50.0),
    Sketcher.Constraint("DistanceX", -1, 1, 1, 3, 216.0),
    Sketcher.Constraint("DistanceY", 1, 3, -1, 1, 216.0),
    Sketcher.Constraint("DistanceX", -1, 1, 3, 3, 24.0),
    Sketcher.Constraint("DistanceY", 7, 3, -1, 1, 24.0),
    Sketcher.Constraint("DistanceY", 0, 2, -1, 1, 197.5),
    Sketcher.Constraint("DistanceX", 2, 2, 2, 1, 93.45052),
])
sketch13.setExpression("Constraints[45]", "Params.sketch13_radius")
pocket5 = doc.addObject("PartDesign::Pocket", "Pocket004")
body.addObject(pocket5)
pocket5.Profile = sketch13
pocket5.setExpression("Length", "Params.pocket5_length")
pocket5.Reversed = True
body2 = doc.addObject("PartDesign::Body", "Body001")

# Sketch on XY plane
sketch14 = doc.addObject("Sketcher::SketchObject", "Sketch013")
body2.addObject(sketch14)
sketch14.AttachmentSupport = (doc.getObject("XY_Plane001"), [""])
sketch14.MapMode = "FlatFace"
sketch14.AttachmentOffset = App.Placement(Vector(0, 0, -95), App.Rotation())
sketch14.addGeometry([
    Part.LineSegment(Vector(87.5, 47, 0), Vector(102.1, 47, 0)),  # 0
    Part.ArcOfCircle(Part.Circle(Vector(120, 47, 0), Vector(0, 0, 1), 17.9), math.radians(0), math.radians(180)),  # 1
    Part.LineSegment(Vector(137.9, 47, 0), Vector(152.5, 47, 0)),  # 2
    Part.LineSegment(Vector(152.5, 47, 0), Vector(152.5, 50, 0)),  # 3
    Part.LineSegment(Vector(152.5, 50, 0), Vector(140.8, 50, 0)),  # 4
    Part.ArcOfCircle(Part.Circle(Vector(120, 47, 0), Vector(0, 0, 1), 21), math.radians(8), math.radians(172)),  # 5
    Part.LineSegment(Vector(99.2, 50, 0), Vector(87.5, 50, 0)),  # 6
    Part.LineSegment(Vector(87.5, 50, 0), Vector(87.5, 47, 0)),  # 7
], False)
sketch14.addConstraint([
    Sketcher.Constraint("Coincident", 0, 2, 1, 2),
    Sketcher.Constraint("Coincident", 1, 1, 2, 1),
    Sketcher.Constraint("Coincident", 2, 2, 3, 1),
    Sketcher.Constraint("Coincident", 3, 2, 4, 1),
    Sketcher.Constraint("Coincident", 4, 2, 5, 1),
    Sketcher.Constraint("Coincident", 5, 2, 6, 1),
    Sketcher.Constraint("Coincident", 6, 2, 7, 1),
    Sketcher.Constraint("Coincident", 7, 2, 0, 1),
    Sketcher.Constraint("Horizontal", 0),
    Sketcher.Constraint("Horizontal", 2),
    Sketcher.Constraint("Vertical", 3),
    Sketcher.Constraint("Horizontal", 4),
    Sketcher.Constraint("Horizontal", 6),
    Sketcher.Constraint("Vertical", 7),
    Sketcher.Constraint("Coincident", 5, 3, 1, 3),
    Sketcher.Constraint("Horizontal", 5, 3, 0, 2),
    Sketcher.Constraint("Horizontal", 0, 2, 1, 1),
    Sketcher.Constraint("Horizontal", 4, 2, 5, 2),
    Sketcher.Constraint("Equal", 0, 2),
    Sketcher.Constraint("Radius", 5, 21.0),
    Sketcher.Constraint("DistanceY", 3, 1, 3, 2, 3.0),
    Sketcher.Constraint("DistanceX", -1, 1, 1, 3, 120.0),
    Sketcher.Constraint("DistanceY", -1, 1, 1, 3, 47.0),
    Sketcher.Constraint("Radius", 1, 17.875),
    Sketcher.Constraint("DistanceX", -1, 1, 2, 2, 152.5),
])
sketch14.setExpression("Constraints[19]", "Params.sketch14_radius")
sketch14.setExpression("Constraints[20]", "Params.sketch14_height")
pad9 = doc.addObject("PartDesign::Pad", "Pad008")
body2.addObject(pad9)
pad9.Profile = sketch14
pad9.setExpression("Length", "Params.pad9_length")
pad9.Reversed = True

# Sketch on XZ plane
sketch15 = doc.addObject("Sketcher::SketchObject", "Sketch014")
body2.addObject(sketch15)
sketch15.AttachmentSupport = (doc.getObject("XZ_Plane001"), [""])
sketch15.MapMode = "FlatFace"
sketch15.AttachmentOffset = App.Placement(Vector(0, 0, -50), App.Rotation())
sketch15.addGeometry([
    Part.Circle(Vector(145.2, -130.5, 0), Vector(0, 0, 1), 2.1),
    Part.Circle(Vector(94.8, -106.5, 0), Vector(0, 0, 1), 2.1),
    Part.Circle(Vector(145.2, -106.5, 0), Vector(0, 0, 1), 2.1),
    Part.Circle(Vector(94.8, -130.5, 0), Vector(0, 0, 1), 2.1),
], False)
sketch15.addConstraint([
    Sketcher.Constraint("Equal", 0, 1),
    Sketcher.Constraint("Equal", 1, 2),
    Sketcher.Constraint("Equal", 2, 3),
    Sketcher.Constraint("Horizontal", 1, 3, 2, 3),
    Sketcher.Constraint("Horizontal", 0, 3, 3, 3),
    Sketcher.Constraint("Vertical", 0, 3, 2, 3),
    Sketcher.Constraint("Vertical", 1, 3, 3, 3),
    Sketcher.Constraint("Diameter", 0, 4.3),
    Sketcher.Constraint("DistanceX", 1, 3, 0, 3, 50.375),
    Sketcher.Constraint("DistanceX", -1, 1, 0, 3, 145.1875),
    Sketcher.Constraint("DistanceY", 0, 3, 1, 3, 24.071789),
    Sketcher.Constraint("DistanceY", 0, 3, -1, 1, 130.535895),
])
sketch15.setExpression("Constraints[7]", "Params.sketch15_diameter")
pocket6 = doc.addObject("PartDesign::Pocket", "Pocket005")
body2.addObject(pocket6)
pocket6.Profile = sketch15
pocket6.setExpression("Length", "Params.pocket6_length")
pocket6.Reversed = True

doc.recompute()
